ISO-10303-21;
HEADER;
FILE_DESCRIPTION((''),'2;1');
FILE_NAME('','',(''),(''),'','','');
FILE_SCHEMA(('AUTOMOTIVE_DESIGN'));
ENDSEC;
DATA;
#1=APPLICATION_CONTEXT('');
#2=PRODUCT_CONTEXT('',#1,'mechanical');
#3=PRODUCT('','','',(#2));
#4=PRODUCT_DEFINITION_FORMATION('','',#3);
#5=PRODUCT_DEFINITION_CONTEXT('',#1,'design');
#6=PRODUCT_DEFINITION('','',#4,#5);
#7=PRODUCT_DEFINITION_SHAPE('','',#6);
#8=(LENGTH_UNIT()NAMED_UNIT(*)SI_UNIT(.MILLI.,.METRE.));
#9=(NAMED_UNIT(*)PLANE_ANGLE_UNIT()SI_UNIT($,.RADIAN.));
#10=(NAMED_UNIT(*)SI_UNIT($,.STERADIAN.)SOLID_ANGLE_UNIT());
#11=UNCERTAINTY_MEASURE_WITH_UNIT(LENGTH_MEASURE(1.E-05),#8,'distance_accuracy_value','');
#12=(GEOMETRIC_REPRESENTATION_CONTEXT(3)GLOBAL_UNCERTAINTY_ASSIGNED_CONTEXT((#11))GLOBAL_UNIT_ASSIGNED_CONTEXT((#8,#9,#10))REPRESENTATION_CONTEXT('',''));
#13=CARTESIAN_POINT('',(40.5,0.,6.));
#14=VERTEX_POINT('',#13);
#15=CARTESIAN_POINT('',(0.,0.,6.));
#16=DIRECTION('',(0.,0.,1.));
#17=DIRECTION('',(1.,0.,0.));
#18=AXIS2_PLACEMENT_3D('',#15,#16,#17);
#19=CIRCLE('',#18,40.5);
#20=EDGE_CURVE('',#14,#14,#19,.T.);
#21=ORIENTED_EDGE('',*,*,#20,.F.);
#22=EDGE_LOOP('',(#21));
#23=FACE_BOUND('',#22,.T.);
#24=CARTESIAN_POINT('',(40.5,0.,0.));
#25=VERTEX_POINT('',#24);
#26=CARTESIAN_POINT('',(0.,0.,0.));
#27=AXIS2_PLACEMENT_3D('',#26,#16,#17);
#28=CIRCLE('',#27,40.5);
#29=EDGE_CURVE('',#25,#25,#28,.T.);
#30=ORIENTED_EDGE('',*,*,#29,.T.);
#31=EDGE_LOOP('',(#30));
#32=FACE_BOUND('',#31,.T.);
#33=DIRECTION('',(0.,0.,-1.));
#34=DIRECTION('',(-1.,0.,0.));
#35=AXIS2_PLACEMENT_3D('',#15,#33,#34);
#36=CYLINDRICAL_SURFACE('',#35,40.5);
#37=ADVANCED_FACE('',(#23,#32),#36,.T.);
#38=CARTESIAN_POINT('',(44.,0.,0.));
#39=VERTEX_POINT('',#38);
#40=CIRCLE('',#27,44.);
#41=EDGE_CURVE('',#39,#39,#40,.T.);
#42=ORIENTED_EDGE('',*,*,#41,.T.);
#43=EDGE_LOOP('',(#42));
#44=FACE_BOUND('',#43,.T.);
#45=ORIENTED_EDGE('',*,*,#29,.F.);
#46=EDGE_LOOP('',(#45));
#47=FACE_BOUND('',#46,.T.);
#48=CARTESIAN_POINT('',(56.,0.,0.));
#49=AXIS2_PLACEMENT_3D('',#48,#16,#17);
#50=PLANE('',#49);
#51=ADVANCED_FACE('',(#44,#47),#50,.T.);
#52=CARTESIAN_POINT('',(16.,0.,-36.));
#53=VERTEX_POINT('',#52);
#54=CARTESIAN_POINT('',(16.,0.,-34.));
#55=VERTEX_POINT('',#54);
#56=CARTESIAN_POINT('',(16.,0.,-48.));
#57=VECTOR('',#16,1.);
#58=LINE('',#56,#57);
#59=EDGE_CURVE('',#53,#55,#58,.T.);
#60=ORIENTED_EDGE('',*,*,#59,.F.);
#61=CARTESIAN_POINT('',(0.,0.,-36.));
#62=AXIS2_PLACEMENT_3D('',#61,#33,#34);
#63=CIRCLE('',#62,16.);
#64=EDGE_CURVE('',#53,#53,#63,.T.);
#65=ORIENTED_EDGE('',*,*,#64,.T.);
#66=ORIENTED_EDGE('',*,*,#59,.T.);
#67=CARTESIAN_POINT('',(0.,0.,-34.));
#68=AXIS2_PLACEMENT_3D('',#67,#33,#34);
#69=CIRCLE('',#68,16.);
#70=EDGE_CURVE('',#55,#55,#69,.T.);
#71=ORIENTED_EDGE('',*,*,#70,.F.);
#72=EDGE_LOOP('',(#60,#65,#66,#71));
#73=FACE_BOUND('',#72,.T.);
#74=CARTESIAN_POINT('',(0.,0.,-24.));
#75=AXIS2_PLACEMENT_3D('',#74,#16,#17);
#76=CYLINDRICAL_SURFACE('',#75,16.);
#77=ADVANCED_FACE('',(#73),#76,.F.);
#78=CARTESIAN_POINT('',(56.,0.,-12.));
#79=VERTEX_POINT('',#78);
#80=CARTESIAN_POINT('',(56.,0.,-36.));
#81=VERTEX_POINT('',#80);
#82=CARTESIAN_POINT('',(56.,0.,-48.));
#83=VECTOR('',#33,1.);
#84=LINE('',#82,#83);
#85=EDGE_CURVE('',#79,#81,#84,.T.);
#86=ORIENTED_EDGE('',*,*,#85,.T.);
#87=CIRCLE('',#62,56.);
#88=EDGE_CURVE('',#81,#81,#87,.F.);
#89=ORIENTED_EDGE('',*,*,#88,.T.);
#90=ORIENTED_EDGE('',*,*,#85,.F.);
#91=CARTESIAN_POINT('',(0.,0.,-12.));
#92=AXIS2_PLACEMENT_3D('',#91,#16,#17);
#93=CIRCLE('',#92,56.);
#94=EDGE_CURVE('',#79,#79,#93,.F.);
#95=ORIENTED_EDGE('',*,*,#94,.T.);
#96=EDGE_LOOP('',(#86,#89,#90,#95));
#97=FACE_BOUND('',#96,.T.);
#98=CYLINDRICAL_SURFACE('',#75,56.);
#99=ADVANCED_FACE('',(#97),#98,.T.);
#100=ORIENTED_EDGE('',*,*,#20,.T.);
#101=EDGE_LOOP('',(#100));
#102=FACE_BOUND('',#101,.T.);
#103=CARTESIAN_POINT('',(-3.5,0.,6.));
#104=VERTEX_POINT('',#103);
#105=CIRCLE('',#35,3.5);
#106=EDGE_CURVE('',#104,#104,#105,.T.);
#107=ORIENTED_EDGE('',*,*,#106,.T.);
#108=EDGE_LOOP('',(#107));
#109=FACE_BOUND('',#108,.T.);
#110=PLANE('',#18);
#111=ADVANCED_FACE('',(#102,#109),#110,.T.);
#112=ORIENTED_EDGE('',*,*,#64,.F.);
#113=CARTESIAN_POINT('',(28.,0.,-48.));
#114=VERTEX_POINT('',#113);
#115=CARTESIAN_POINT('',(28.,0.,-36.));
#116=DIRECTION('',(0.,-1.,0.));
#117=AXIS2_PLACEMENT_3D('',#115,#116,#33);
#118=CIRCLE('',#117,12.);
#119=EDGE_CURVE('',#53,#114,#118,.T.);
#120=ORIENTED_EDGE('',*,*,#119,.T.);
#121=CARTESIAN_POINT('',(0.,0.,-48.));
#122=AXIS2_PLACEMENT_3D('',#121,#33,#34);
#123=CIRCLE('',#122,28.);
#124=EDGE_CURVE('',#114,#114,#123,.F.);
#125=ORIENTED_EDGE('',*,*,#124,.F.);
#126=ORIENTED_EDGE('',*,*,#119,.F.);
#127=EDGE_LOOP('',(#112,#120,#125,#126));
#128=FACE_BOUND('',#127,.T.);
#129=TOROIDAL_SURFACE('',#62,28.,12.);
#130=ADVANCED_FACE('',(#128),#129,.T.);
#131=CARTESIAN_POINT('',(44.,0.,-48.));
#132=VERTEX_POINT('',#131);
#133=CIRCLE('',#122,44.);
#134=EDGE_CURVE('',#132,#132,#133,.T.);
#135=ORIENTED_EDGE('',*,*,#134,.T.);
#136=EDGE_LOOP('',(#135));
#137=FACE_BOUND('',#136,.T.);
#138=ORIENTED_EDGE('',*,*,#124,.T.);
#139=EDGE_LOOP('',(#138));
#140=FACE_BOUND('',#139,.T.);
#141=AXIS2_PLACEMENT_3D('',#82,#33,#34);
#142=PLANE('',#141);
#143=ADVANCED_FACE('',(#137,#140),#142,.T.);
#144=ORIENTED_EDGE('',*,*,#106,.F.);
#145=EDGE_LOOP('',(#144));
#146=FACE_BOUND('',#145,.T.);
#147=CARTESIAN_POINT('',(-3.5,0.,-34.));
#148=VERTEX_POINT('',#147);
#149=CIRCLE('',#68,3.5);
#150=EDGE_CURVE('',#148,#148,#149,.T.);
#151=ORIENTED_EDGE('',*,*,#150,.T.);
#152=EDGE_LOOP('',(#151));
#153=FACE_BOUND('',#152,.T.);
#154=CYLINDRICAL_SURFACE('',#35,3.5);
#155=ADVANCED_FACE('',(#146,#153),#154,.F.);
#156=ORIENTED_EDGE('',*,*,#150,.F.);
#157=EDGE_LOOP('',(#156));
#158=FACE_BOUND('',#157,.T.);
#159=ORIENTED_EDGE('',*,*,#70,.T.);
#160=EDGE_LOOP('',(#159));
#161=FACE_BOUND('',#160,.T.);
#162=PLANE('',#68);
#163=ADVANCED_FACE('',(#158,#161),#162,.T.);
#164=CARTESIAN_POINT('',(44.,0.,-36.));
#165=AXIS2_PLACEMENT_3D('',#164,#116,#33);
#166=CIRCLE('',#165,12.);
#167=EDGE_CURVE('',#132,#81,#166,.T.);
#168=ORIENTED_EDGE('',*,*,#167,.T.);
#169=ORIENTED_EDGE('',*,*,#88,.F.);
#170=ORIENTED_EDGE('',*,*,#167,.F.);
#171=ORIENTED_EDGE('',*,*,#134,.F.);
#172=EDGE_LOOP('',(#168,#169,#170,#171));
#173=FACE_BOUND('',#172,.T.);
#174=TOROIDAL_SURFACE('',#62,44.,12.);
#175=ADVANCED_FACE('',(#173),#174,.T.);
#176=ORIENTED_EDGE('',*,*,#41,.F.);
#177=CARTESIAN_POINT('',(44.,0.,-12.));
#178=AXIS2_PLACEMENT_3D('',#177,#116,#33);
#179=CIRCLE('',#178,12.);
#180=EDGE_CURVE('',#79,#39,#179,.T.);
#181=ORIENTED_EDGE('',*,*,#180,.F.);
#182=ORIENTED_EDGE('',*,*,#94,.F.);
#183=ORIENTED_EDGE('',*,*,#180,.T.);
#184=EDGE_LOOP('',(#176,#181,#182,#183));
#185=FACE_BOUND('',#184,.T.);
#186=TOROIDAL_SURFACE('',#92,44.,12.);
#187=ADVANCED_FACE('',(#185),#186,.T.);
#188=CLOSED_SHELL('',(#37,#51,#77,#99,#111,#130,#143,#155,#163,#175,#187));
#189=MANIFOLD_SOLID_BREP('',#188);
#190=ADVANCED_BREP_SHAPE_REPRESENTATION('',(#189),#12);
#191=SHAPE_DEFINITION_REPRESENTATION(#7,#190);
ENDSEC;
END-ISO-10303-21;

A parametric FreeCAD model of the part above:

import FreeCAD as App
import Part
import Sketcher
Q = App.Units.Quantity


def edges_at(feature, points):
    """Names of the edges that pass closest to the given points."""
    edges = feature.Shape.Edges
    near = lambda p: min(range(len(edges)), key=lambda i: edges[i].distToShape(Part.Vertex(*p))[0])
    return sorted({f"Edge{near(p) + 1}" for p in points})


def add_polygon(sketch, points):
    """Adds a closed chain of lines whose ends are joined by coincident constraints."""
    first, n = sketch.GeometryCount, len(points)
    for a, b in zip(points, points[1:] + points[:1]):
        sketch.addGeometry(Part.LineSegment(App.Vector(*a, 0), App.Vector(*b, 0)), False)
    for i in range(n):
        sketch.addConstraint(Sketcher.Constraint("Coincident", first + i, 2, first + (i + 1) % n, 1))

doc = App.newDocument("Part")
params = doc.addObject("Spreadsheet::Sheet", "Params")
for row, (alias, value) in enumerate([
    ("sketch1_diameter", "81 mm"),
    ("pad1_length", "6 mm"),
    ("sketch2_width", "40 mm"),
    ("sketch2_height", "48 mm"),
    ("sketch3_diameter", "140 mm"),
    ("fillet_radius", "12 mm"),
    ("sketch4_diameter", "32 mm"),
    ("pad2_length", "34 mm"),
    ("sketch5_diameter", "7 mm"),
], start=1):
    params.set(f"A{row}", alias)
    params.set(f"B{row}", "=" + value)
    params.setAlias(f"B{row}", alias)

body = doc.addObject("PartDesign::Body", "Body")

# Sketch on XY plane
sketch1 = doc.addObject("Sketcher::SketchObject", "Sketch")
body.addObject(sketch1)
sketch1.AttachmentSupport = (doc.XY_Plane, [""])
sketch1.MapMode = "FlatFace"
sketch1.addGeometry(Part.Circle(App.Vector(0, 0, 0), App.Vector(0, 0, 1), 40), False)
sketch1.addConstraint([
    Sketcher.Constraint("Coincident", 0, 3, -1, 1),
    Sketcher.Constraint("Diameter", 0, Q("81 mm")),
])
sketch1.setExpression("Constraints[1]", "Params.sketch1_diameter")
pad1 = doc.addObject("PartDesign::Pad", "Pad")
body.addObject(pad1)
pad1.Profile = sketch1
pad1.setExpression("Length", "Params.pad1_length")

# Sketch on XZ plane
sketch2 = doc.addObject("Sketcher::SketchObject", "Sketch001")
body.addObject(sketch2)
sketch2.AttachmentSupport = (doc.XZ_Plane, [""])
sketch2.MapMode = "FlatFace"
add_polygon(sketch2, [(16, -48), (16, 0), (56, 0), (56, -48)])  # lines 0-3
sketch2.addConstraint([
    Sketcher.Constraint("Vertical", 0),
    Sketcher.Constraint("Horizontal", 1),
    Sketcher.Constraint("Vertical", 2),
    Sketcher.Constraint("Horizontal", 3),
    Sketcher.Constraint("PointOnObject", 0, 2, -1),
    Sketcher.Constraint("DistanceX", 1, 1, 1, 2, Q("40 mm")),
    Sketcher.Constraint("DistanceY", 0, 1, 0, 2, Q("48 mm")),
    Sketcher.Constraint("DistanceX", -1, 1, 0, 2, Q("16 mm")),
])
sketch2.setExpression("Constraints[9]", "Params.sketch2_width")
sketch2.setExpression("Constraints[10]", "Params.sketch2_height")

# Sketch on XY plane
sketch3 = doc.addObject("Sketcher::SketchObject", "Sketch002")
body.addObject(sketch3)
sketch3.AttachmentSupport = (doc.XY_Plane, [""])
sketch3.MapMode = "FlatFace"
sketch3.AttachmentOffset = App.Placement(App.Vector(0, 0, -24), App.Rotation())
sketch3.addGeometry(Part.Circle(App.Vector(0, 0, 0), App.Vector(0, 0, 1), 70), False)
sketch3.addConstraint([
    Sketcher.Constraint("Coincident", 0, 3, -1, 1),
    Sketcher.Constraint("Diameter", 0, Q("140 mm")),
])
sketch3.setExpression("Constraints[1]", "Params.sketch3_diameter")
doc.recompute()

additivepipe = doc.addObject("PartDesign::AdditivePipe", "AdditivePipe")
body.addObject(additivepipe)
additivepipe.Profile = sketch2
additivepipe.Spine = (sketch3, ["Edge1"])
doc.recompute()

fillet = doc.addObject("PartDesign::Fillet", "Fillet")
body.addObject(fillet)
fillet.Base = (additivepipe, edges_at(additivepipe, [(-16, 0, -48), (-56, 0, -48), (-56, 0, 0)]))
fillet.setExpression("Radius", "Params.fillet_radius")

# Sketch on XY plane
sketch4 = doc.addObject("Sketcher::SketchObject", "Sketch003")
body.addObject(sketch4)
sketch4.AttachmentSupport = (doc.XY_Plane, [""])
sketch4.MapMode = "FlatFace"
sketch4.addGeometry(Part.Circle(App.Vector(0, 0, 0), App.Vector(0, 0, 1), 16), False)
sketch4.addConstraint([
    Sketcher.Constraint("Coincident", 0, 3, -1, 1),
    Sketcher.Constraint("Diameter", 0, Q("32 mm")),
])
sketch4.setExpression("Constraints[1]", "Params.sketch4_diameter")
pad2 = doc.addObject("PartDesign::Pad", "Pad001")
body.addObject(pad2)
pad2.Profile = sketch4
pad2.setExpression("Length", "Params.pad2_length")
pad2.Reversed = True

# Sketch on XY plane
sketch5 = doc.addObject("Sketcher::SketchObject", "Sketch004")
body.addObject(sketch5)
sketch5.AttachmentSupport = (doc.XY_Plane, [""])
sketch5.MapMode = "FlatFace"
sketch5.AttachmentOffset = App.Placement(App.Vector(0, 0, -34), App.Rotation())
sketch5.addGeometry(Part.Circle(App.Vector(0, 0, 0), App.Vector(0, 0, 1), 3.5), False)
sketch5.addConstraint([
    Sketcher.Constraint("Coincident", 0, 3, -1, 1),
    Sketcher.Constraint("Diameter", 0, Q("7 mm")),
])
sketch5.setExpression("Constraints[1]", "Params.sketch5_diameter")
pocket1 = doc.addObject("PartDesign::Pocket", "Pocket")
body.addObject(pocket1)
pocket1.Profile = sketch5
pocket1.Type = "ThroughAll"
pocket1.Midplane = True

doc.recompute()
